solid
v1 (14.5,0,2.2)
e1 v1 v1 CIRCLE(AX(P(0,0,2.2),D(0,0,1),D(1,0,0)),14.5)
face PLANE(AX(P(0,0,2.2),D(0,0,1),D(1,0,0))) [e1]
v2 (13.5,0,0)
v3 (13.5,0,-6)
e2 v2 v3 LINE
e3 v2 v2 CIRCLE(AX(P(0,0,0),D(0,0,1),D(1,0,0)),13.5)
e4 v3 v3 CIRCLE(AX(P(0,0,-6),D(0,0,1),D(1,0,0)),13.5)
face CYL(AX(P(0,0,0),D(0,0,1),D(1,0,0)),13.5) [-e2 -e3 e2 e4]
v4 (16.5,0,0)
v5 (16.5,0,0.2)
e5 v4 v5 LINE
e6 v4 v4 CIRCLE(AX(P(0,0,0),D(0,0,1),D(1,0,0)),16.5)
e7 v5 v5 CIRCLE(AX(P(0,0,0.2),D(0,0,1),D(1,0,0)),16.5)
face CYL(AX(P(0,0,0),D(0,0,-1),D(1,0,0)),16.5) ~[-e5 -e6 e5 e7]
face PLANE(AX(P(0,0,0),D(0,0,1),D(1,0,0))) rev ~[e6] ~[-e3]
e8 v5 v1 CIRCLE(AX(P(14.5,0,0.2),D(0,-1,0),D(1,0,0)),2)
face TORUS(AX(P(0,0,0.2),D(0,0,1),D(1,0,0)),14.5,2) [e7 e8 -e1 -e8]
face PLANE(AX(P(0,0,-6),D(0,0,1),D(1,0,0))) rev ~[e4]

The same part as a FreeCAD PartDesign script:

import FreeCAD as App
import Part
import Sketcher


def edges_at(feature, points):
    """Names of the edges that pass closest to the given points."""
    edges = feature.Shape.Edges
    near = lambda p: min(range(len(edges)), key=lambda i: edges[i].distToShape(Part.Vertex(*p))[0])
    return sorted({f"Edge{near(p) + 1}" for p in points})

doc = App.newDocument("Part")
body = doc.addObject("PartDesign::Body", "Body")

# Sketch on XY plane
sketch1 = body.newObject("Sketcher::SketchObject", "Sketch")
sketch1.AttachmentSupport = (doc.getObject("XY_Plane"), [""])
sketch1.MapMode = "FlatFace"
sketch1.addGeometry(Part.Circle(App.Vector(0, 0, 0), App.Vector(0, 0, 1), 16), False)
sketch1.addConstraint([
    Sketcher.Constraint("Coincident", 0, 3, -1, 1),
    Sketcher.Constraint("Diameter", 0, 33.0),
])
pad1 = body.newObject("PartDesign::Pad", "Pad")
pad1.Profile = sketch1
pad1.Length = 2.2

# Sketch on XY plane
sketch2 = body.newObject("Sketcher::SketchObject", "Sketch001")
sketch2.AttachmentSupport = (doc.getObject("XY_Plane"), [""])
sketch2.MapMode = "FlatFace"
sketch2.addGeometry(Part.Circle(App.Vector(0, 0, 0), App.Vector(0, 0, 1), 14), False)
sketch2.addConstraint([
    Sketcher.Constraint("Coincident", 0, 3, -1, 1),
    Sketcher.Constraint("Diameter", 0, 27.0),
])
pad2 = body.newObject("PartDesign::Pad", "Pad001")
pad2.Profile = sketch2
pad2.Length = 6
pad2.Reversed = True
doc.recompute()

fillet = body.newObject("PartDesign::Fillet", "Fillet")
fillet.Base = (pad2, edges_at(pad2, [(-15.383, -5.967, 2.2)]))
fillet.Radius = 2

doc.recompute()
